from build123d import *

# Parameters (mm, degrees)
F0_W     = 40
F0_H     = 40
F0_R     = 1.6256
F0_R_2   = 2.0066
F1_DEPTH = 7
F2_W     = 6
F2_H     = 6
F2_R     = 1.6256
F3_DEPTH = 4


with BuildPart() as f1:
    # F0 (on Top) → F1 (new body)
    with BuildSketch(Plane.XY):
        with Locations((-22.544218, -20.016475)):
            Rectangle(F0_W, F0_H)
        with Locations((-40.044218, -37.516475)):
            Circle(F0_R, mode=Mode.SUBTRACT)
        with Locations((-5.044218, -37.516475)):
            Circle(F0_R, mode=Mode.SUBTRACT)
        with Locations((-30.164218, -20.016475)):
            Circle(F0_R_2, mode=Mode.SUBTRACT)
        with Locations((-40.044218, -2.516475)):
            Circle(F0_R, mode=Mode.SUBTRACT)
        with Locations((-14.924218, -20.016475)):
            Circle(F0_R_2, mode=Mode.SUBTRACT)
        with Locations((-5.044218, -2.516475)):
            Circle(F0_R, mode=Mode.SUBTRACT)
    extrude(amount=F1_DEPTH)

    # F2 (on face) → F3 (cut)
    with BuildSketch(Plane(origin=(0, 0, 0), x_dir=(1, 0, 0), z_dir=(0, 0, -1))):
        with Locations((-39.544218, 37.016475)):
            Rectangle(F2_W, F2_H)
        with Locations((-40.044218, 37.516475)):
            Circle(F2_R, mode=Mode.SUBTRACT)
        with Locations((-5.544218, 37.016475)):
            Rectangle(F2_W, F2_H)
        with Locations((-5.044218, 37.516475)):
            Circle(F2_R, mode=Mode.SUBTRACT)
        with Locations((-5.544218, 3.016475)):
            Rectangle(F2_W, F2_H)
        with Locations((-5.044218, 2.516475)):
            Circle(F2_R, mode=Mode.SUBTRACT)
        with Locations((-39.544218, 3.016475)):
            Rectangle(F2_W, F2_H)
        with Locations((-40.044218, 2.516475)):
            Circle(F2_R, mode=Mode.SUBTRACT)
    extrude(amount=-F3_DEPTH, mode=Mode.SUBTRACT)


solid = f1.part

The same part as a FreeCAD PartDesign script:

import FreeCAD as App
import Part
import Sketcher
from FreeCAD import Vector
Q = App.Units.Quantity

doc = App.newDocument("Part")
body = doc.addObject("PartDesign::Body", "Body")

sketch1 = body.newObject("Sketcher::SketchObject", "Sketch")
sketch1.AttachmentSupport = (doc.getObject("XY_Plane"), [""])
sketch1.MapMode = "FlatFace"
sketch1.addGeometry([
    Part.LineSegment(Vector(-42.5, 0, 0), Vector(-42.5, -40, 0)),
    Part.LineSegment(Vector(-42.5, -40, 0), Vector(-2.5, -40, 0)),
    Part.LineSegment(Vector(-2.5, -40, 0), Vector(-2.5, 0, 0)),
    Part.LineSegment(Vector(-2.5, 0, 0), Vector(-42.5, 0, 0)),
    Part.Circle(Vector(-40, -37.5, 0), Vector(0, 0, 1), 1.6),
    Part.Circle(Vector(-5, -37.5, 0), Vector(0, 0, 1), 1.6),
    Part.Circle(Vector(-30.2, -20, 0), Vector(0, 0, 1), 2),
    Part.Circle(Vector(-40, -2.5, 0), Vector(0, 0, 1), 1.6),
    Part.Circle(Vector(-14.9, -20, 0), Vector(0, 0, 1), 2),
    Part.Circle(Vector(-5, -2.5, 0), Vector(0, 0, 1), 1.6),
], False)
sketch1.addConstraint([
    Sketcher.Constraint("Coincident", 0, 2, 1, 1),
    Sketcher.Constraint("Coincident", 1, 2, 2, 1),
    Sketcher.Constraint("Coincident", 2, 2, 3, 1),
    Sketcher.Constraint("Coincident", 3, 2, 0, 1),
    Sketcher.Constraint("Vertical", 0),
    Sketcher.Constraint("Horizontal", 1),
    Sketcher.Constraint("Vertical", 2),
    Sketcher.Constraint("Horizontal", 3),
    Sketcher.Constraint("Equal", 4, 5),
    Sketcher.Constraint("Equal", 5, 7),
    Sketcher.Constraint("Equal", 6, 8),
    Sketcher.Constraint("Equal", 7, 9),
    Sketcher.Constraint("Horizontal", 4, 3, 5, 3),
    Sketcher.Constraint("Horizontal", 6, 3, 8, 3),
    Sketcher.Constraint("Horizontal", 7, 3, 9, 3),
    Sketcher.Constraint("Vertical", 4, 3, 7, 3),
    Sketcher.Constraint("Vertical", 5, 3, 9, 3),
    Sketcher.Constraint("Equal", 3, 0),
    Sketcher.Constraint("DistanceX", 1, 1, 1, 2, Q("40 mm")),
    Sketcher.Constraint("DistanceX", 4, 3, 5, 3, Q("35 mm")),
    Sketcher.Constraint("DistanceY", 4, 3, 7, 3, Q("35 mm")),
    Sketcher.Constraint("DistanceY", 0, 2, 6, 3, Q("20 mm")),
    Sketcher.Constraint("Diameter", 4, Q("3.2512 mm")),
    Sketcher.Constraint("Diameter", 6, Q("4.0132 mm")),
    Sketcher.Constraint("DistanceY", 4, 3, 6, 3, Q("17.5 mm")),
    Sketcher.Constraint("DistanceX", 0, 2, 4, 3, Q("2.5 mm")),
    Sketcher.Constraint("DistanceX", 4, 3, 6, 3, Q("9.88 mm")),
    Sketcher.Constraint("DistanceX", 6, 3, 8, 3, Q("15.24 mm")),
    Sketcher.Constraint("DistanceX", 6, 3, -1, 1, Q("30.164218 mm")),
    Sketcher.Constraint("DistanceY", 4, 3, -1, 1, Q("37.516475 mm")),
])
pad1 = body.newObject("PartDesign::Pad", "Pad")
pad1.Profile = sketch1
pad1.Length = 7

sketch2 = body.newObject("Sketcher::SketchObject", "Sketch001")
sketch2.AttachmentSupport = (doc.getObject("XY_Plane"), [""])
sketch2.MapMode = "FlatFace"
sketch2.addGeometry([
    Part.LineSegment(Vector(-42.5, -40, 0), Vector(-42.5, -34, 0)),
    Part.LineSegment(Vector(-42.5, -34, 0), Vector(-36.5, -34, 0)),
    Part.LineSegment(Vector(-36.5, -34, 0), Vector(-36.5, -40, 0)),
    Part.LineSegment(Vector(-36.5, -40, 0), Vector(-42.5, -40, 0)),
    Part.Circle(Vector(-40, -37.5, 0), Vector(0, 0, 1), 1.6),
    Part.LineSegment(Vector(-8.5, -40, 0), Vector(-8.5, -34, 0)),
    Part.LineSegment(Vector(-8.5, -34, 0), Vector(-2.5, -34, 0)),
    Part.LineSegment(Vector(-2.5, -34, 0), Vector(-2.5, -40, 0)),
    Part.LineSegment(Vector(-2.5, -40, 0), Vector(-8.5, -40, 0)),
    Part.Circle(Vector(-5, -37.5, 0), Vector(0, 0, 1), 1.6),
    Part.LineSegment(Vector(-8.5, -6, 0), Vector(-8.5, 0, 0)),
    Part.LineSegment(Vector(-8.5, 0, 0), Vector(-2.5, 0, 0)),
    Part.LineSegment(Vector(-2.5, 0, 0), Vector(-2.5, -6, 0)),
    Part.LineSegment(Vector(-2.5, -6, 0), Vector(-8.5, -6, 0)),
    Part.Circle(Vector(-5, -2.5, 0), Vector(0, 0, 1), 1.6),
    Part.LineSegment(Vector(-42.5, -6, 0), Vector(-42.5, 0, 0)),
    Part.LineSegment(Vector(-42.5, 0, 0), Vector(-36.5, 0, 0)),
    Part.LineSegment(Vector(-36.5, 0, 0), Vector(-36.5, -6, 0)),
    Part.LineSegment(Vector(-36.5, -6, 0), Vector(-42.5, -6, 0)),
    Part.Circle(Vector(-40, -2.5, 0), Vector(0, 0, 1), 1.6),
], False)
sketch2.addConstraint([
    Sketcher.Constraint("Coincident", 0, 2, 1, 1),
    Sketcher.Constraint("Coincident", 1, 2, 2, 1),
    Sketcher.Constraint("Coincident", 2, 2, 3, 1),
    Sketcher.Constraint("Coincident", 3, 2, 0, 1),
    Sketcher.Constraint("Coincident", 5, 2, 6, 1),
    Sketcher.Constraint("Coincident", 6, 2, 7, 1),
    Sketcher.Constraint("Coincident", 7, 2, 8, 1),
    Sketcher.Constraint("Coincident", 8, 2, 5, 1),
    Sketcher.Constraint("Coincident", 10, 2, 11, 1),
    Sketcher.Constraint("Coincident", 11, 2, 12, 1),
    Sketcher.Constraint("Coincident", 12, 2, 13, 1),
    Sketcher.Constraint("Coincident", 13, 2, 10, 1),
    Sketcher.Constraint("Coincident", 15, 2, 16, 1),
    Sketcher.Constraint("Coincident", 16, 2, 17, 1),
    Sketcher.Constraint("Coincident", 17, 2, 18, 1),
    Sketcher.Constraint("Coincident", 18, 2, 15, 1),
    Sketcher.Constraint("Vertical", 0),
    Sketcher.Constraint("Horizontal", 1),
    Sketcher.Constraint("Vertical", 2),
    Sketcher.Constraint("Horizontal", 3),
    Sketcher.Constraint("Vertical", 5),
    Sketcher.Constraint("Horizontal", 6),
    Sketcher.Constraint("Vertical", 7),
    Sketcher.Constraint("Horizontal", 8),
    Sketcher.Constraint("Vertical", 10),
    Sketcher.Constraint("Horizontal", 11),
    Sketcher.Constraint("Vertical", 12),
    Sketcher.Constraint("Horizontal", 13),
    Sketcher.Constraint("Vertical", 15),
    Sketcher.Constraint("Horizontal", 16),
    Sketcher.Constraint("Vertical", 17),
    Sketcher.Constraint("Horizontal", 18),
    Sketcher.Constraint("Equal", 4, 9),
    Sketcher.Constraint("Equal", 9, 14),
    Sketcher.Constraint("Equal", 14, 19),
    Sketcher.Constraint("Horizontal", 4, 3, 9, 3),
    Sketcher.Constraint("Horizontal", 14, 3, 19, 3),
    Sketcher.Constraint("Horizontal", 1, 2, 5, 2),
    Sketcher.Constraint("Horizontal", 3, 2, 7, 2),
    Sketcher.Constraint("Horizontal", 11, 2, 15, 2),
    Sketcher.Constraint("Horizontal", 13, 2, 17, 2),
    Sketcher.Constraint("Vertical", 9, 3, 14, 3),
    Sketcher.Constraint("Vertical", 4, 3, 19, 3),
    Sketcher.Constraint("Vertical", 8, 2, 10, 2),
    Sketcher.Constraint("Vertical", 7, 2, 11, 2),
    Sketcher.Constraint("Vertical", 3, 2, 15, 2),
    Sketcher.Constraint("Vertical", 2, 2, 16, 2),
    Sketcher.Constraint("Equal", 3, 6),
    Sketcher.Constraint("Equal", 18, 0),
    Sketcher.Constraint("Equal", 7, 10),
    Sketcher.Constraint("DistanceX", 1, 1, 1, 2, Q("6 mm")),
    Sketcher.Constraint("DistanceX", 4, 3, 9, 3, Q("35 mm")),
    Sketcher.Constraint("DistanceY", 9, 3, 14, 3, Q("35 mm")),
    Sketcher.Constraint("DistanceX", 1, 2, 5, 2, Q("28 mm")),
    Sketcher.Constraint("DistanceY", 5, 2, 10, 2, Q("34 mm")),
    Sketcher.Constraint("Diameter", 4, Q("3.2512 mm")),
    Sketcher.Constraint("DistanceX", 0, 2, 4, 3, Q("2.5 mm")),
    Sketcher.Constraint("DistanceY", 4, 3, 0, 2, Q("3.5 mm")),
    Sketcher.Constraint("DistanceX", 5, 2, -1, 1, Q("8.544218 mm")),
    Sketcher.Constraint("DistanceY", 4, 3, -1, 1, Q("37.516475 mm")),
])
pocket1 = body.newObject("PartDesign::Pocket", "Pocket")
pocket1.Profile = sketch2
pocket1.Length = 4
pocket1.Reversed = True

doc.recompute()
